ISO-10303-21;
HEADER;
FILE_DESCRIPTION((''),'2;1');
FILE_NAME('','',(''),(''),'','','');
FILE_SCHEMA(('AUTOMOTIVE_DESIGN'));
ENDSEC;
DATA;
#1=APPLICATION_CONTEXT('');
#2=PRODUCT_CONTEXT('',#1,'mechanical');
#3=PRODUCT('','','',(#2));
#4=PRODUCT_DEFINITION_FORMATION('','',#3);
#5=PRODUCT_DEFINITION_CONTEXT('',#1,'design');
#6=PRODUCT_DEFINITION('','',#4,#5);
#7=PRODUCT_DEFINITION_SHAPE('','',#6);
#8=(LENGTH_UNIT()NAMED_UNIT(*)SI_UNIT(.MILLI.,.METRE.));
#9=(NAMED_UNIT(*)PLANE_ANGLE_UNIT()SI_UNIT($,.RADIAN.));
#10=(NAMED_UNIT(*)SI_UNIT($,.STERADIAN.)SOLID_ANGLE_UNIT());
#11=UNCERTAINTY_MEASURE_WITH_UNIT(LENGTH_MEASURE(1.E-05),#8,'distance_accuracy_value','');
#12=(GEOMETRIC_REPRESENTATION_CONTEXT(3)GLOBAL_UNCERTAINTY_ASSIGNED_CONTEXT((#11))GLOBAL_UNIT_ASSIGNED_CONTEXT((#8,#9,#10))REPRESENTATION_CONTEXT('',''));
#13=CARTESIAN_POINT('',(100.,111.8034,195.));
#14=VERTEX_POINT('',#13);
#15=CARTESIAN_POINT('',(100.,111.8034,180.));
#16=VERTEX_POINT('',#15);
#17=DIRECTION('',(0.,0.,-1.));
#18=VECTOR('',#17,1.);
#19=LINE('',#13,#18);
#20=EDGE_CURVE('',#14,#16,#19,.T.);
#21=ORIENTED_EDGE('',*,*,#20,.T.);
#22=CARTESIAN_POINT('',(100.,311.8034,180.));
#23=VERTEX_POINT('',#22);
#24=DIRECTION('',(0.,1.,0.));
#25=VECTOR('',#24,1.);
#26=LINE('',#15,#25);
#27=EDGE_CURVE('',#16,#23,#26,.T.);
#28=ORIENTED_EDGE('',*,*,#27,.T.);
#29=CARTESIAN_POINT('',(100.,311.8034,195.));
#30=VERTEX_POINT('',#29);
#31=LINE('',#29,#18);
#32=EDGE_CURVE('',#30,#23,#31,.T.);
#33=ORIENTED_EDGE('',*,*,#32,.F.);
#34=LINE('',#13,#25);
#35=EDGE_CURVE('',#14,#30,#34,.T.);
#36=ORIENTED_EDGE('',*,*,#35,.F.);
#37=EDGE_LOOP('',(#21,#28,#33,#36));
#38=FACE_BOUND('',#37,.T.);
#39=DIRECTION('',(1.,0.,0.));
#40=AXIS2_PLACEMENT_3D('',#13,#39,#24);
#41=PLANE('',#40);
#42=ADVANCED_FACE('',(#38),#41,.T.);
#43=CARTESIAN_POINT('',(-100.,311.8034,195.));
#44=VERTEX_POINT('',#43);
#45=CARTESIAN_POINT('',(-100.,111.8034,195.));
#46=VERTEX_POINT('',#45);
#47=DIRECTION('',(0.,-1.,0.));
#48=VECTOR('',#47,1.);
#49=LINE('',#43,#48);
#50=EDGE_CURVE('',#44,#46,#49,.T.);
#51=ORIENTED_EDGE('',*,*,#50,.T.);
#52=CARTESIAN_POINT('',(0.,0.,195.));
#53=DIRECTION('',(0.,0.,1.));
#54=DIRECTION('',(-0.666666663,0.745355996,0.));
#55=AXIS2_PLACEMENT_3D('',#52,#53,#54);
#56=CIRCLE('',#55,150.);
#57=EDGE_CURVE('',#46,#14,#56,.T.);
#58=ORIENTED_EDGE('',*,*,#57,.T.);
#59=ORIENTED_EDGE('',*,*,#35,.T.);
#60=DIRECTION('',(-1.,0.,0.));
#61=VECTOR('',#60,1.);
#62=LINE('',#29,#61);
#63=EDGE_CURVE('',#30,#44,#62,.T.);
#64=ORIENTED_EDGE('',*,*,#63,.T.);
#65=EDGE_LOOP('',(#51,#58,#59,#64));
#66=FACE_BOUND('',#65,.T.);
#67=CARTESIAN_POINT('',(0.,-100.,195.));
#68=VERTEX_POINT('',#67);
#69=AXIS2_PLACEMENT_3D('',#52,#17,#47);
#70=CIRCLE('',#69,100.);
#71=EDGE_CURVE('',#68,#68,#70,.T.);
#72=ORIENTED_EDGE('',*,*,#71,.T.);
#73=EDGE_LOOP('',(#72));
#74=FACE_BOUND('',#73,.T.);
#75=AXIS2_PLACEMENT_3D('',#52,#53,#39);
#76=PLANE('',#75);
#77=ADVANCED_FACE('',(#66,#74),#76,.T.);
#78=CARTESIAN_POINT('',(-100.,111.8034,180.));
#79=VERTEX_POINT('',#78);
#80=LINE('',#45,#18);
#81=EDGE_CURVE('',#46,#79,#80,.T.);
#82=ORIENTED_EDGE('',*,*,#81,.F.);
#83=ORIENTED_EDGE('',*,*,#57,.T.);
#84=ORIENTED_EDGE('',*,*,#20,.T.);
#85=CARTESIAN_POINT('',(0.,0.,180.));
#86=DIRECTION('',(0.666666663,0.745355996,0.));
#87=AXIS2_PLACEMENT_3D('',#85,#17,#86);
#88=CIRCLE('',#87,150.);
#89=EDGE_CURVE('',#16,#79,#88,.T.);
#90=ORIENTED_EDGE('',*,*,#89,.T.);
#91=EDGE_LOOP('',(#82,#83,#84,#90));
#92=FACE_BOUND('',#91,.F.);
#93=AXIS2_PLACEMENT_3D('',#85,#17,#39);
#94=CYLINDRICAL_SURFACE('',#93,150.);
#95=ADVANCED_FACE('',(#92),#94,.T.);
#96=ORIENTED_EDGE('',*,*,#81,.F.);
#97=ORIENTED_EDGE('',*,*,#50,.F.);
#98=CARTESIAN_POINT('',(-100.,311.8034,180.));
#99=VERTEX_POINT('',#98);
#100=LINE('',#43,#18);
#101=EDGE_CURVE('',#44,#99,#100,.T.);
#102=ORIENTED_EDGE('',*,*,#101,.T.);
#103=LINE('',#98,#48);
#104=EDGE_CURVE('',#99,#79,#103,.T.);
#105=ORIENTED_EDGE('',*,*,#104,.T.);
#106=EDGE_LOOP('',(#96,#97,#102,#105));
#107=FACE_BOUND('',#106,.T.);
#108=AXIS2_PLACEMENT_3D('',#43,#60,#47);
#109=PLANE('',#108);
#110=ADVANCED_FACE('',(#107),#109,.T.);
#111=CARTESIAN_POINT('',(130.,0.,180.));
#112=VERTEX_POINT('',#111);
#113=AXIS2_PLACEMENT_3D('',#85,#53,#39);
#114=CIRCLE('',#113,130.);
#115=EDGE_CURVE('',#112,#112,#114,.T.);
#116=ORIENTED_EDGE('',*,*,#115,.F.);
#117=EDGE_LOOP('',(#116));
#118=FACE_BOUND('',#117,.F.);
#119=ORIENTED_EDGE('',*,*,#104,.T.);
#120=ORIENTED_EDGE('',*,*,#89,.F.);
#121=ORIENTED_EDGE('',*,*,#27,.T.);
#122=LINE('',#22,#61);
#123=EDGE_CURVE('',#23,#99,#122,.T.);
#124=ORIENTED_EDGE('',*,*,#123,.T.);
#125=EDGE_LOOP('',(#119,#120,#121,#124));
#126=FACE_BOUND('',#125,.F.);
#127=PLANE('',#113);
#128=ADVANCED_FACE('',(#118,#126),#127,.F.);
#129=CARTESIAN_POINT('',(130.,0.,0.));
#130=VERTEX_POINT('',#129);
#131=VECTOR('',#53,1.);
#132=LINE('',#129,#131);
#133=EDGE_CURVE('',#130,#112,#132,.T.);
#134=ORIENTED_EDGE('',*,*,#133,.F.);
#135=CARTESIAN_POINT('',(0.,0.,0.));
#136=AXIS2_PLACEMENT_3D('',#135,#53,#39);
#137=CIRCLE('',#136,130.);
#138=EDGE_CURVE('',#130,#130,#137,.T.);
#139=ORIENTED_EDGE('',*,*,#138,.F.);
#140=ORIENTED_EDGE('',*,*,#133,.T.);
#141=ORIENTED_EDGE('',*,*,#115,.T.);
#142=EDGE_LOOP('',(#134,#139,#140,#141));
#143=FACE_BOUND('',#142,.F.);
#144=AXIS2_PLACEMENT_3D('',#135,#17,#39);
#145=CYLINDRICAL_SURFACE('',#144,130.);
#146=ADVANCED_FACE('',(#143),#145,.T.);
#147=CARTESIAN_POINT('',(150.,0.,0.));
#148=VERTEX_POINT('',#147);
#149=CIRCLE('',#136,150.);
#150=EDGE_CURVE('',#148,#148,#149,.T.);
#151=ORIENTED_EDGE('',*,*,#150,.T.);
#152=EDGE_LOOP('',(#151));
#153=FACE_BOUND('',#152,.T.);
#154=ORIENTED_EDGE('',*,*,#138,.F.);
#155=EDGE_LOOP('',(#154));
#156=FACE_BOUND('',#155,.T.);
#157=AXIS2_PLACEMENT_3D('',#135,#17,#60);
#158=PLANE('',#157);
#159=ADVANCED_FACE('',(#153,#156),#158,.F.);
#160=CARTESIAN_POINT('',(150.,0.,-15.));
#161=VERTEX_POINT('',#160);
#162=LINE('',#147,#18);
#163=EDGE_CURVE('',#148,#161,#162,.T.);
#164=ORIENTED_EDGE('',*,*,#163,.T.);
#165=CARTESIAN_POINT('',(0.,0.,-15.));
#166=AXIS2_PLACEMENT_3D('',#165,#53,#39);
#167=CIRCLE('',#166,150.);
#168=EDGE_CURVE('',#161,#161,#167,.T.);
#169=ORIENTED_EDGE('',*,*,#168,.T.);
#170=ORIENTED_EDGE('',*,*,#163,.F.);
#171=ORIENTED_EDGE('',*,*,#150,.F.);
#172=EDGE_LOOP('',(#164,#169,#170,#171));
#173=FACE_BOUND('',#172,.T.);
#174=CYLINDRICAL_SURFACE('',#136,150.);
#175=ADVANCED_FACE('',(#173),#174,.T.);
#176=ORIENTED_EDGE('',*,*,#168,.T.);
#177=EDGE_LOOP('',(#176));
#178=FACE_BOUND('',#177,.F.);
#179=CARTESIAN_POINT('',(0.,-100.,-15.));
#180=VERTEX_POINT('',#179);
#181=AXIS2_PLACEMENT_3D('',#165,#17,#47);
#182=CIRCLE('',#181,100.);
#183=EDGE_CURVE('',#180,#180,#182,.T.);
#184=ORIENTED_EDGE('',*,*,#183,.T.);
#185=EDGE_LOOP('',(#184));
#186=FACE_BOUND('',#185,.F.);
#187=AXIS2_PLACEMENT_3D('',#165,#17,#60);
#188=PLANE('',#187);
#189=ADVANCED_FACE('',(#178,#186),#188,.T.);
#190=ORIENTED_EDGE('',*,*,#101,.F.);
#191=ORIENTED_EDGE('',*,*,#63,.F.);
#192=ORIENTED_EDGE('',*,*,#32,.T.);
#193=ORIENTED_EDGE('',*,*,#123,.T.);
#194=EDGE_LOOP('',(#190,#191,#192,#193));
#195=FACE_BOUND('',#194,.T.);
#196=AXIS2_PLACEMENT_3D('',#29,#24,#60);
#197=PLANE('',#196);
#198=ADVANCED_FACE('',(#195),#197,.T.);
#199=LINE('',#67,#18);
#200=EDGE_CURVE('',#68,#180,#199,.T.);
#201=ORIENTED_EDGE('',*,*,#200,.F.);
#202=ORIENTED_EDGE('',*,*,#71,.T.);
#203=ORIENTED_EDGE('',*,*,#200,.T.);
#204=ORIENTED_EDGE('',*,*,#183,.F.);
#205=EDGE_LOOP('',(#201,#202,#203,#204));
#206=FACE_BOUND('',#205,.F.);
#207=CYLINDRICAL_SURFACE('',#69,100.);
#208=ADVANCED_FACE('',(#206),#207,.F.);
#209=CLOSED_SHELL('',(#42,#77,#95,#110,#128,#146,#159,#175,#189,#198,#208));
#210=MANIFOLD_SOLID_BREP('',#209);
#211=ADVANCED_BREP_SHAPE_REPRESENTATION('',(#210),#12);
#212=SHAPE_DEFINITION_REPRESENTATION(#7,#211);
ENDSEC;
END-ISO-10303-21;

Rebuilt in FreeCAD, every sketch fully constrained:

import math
import FreeCAD as App
import Part
import Sketcher

doc = App.newDocument("Part")
body = doc.addObject("PartDesign::Body", "Body")

sketch1 = body.newObject("Sketcher::SketchObject", "Sketch")
sketch1.AttachmentSupport = (doc.getObject("XY_Plane"), [""])
sketch1.MapMode = "FlatFace"
sketch1.addGeometry(Part.Circle(App.Vector(0, 0, 0), App.Vector(0, 0, 1), 130), False)
sketch1.addConstraint([
    Sketcher.Constraint("Coincident", 0, 3, -1, 1),
    Sketcher.Constraint("Diameter", 0, 260.0),
])
pad1 = body.newObject("PartDesign::Pad", "Pad")
pad1.Profile = sketch1
pad1.Length = 180

sketch2 = body.newObject("Sketcher::SketchObject", "Sketch001")
sketch2.AttachmentSupport = (doc.getObject("XY_Plane"), [""])
sketch2.MapMode = "FlatFace"
sketch2.AttachmentOffset = App.Placement(App.Vector(0, 0, 180), App.Rotation())
sketch2.addGeometry(Part.Circle(App.Vector(0, 0, 0), App.Vector(0, 0, 1), 150), False)
sketch2.addConstraint([
    Sketcher.Constraint("Coincident", 0, 3, -1, 1),
    Sketcher.Constraint("Diameter", 0, 300.0),
])
pad2 = body.newObject("PartDesign::Pad", "Pad001")
pad2.Profile = sketch2
pad2.Length = 15
doc.recompute()

datumplane = body.newObject("PartDesign::Plane", "DatumPlane")
datumplane.AttachmentSupport = (doc.getObject("XY_Plane"), [""])
datumplane.MapMode = "FlatFace"
datumplane.AttachmentOffset = App.Placement(App.Vector(0, 0, 90), App.Rotation())
mirrored = body.newObject("PartDesign::Mirrored", "Mirrored")
mirrored.Originals = [pad2]
mirrored.MirrorPlane = (datumplane, [""])
body.Tip = mirrored

sketch3 = body.newObject("Sketcher::SketchObject", "Sketch002")
sketch3.AttachmentSupport = (doc.getObject("XY_Plane"), [""])
sketch3.MapMode = "FlatFace"
sketch3.AttachmentOffset = App.Placement(App.Vector(0, 0, 195), App.Rotation())
sketch3.addGeometry(Part.Circle(App.Vector(0, 0, 0), App.Vector(0, 0, 1), 100), False)
sketch3.addConstraint([
    Sketcher.Constraint("Coincident", 0, 3, -1, 1),
    Sketcher.Constraint("Diameter", 0, 200.0),
])
doc.recompute()
hole = body.newObject("PartDesign::Hole", "Hole")
hole.Profile = sketch3
hole.ThreadType = "None"
hole.Diameter = 200
hole.DepthType = "ThroughAll"

sketch4 = body.newObject("Sketcher::SketchObject", "Sketch003")
sketch4.AttachmentSupport = (doc.getObject("XY_Plane"), [""])
sketch4.MapMode = "FlatFace"
sketch4.AttachmentOffset = App.Placement(App.Vector(0, 0, 195), App.Rotation())
sketch4.addGeometry([
    Part.ArcOfCircle(Part.Circle(App.Vector(0, 0, 0), App.Vector(0, 0, 1), 150), math.radians(48), math.radians(132)),
    Part.LineSegment(App.Vector(100, 112, 0), App.Vector(100, 312, 0)),
    Part.LineSegment(App.Vector(100, 312, 0), App.Vector(-100, 312, 0)),
    Part.LineSegment(App.Vector(-100, 312, 0), App.Vector(-100, 112, 0)),
], False)
sketch4.addConstraint([
    Sketcher.Constraint("Coincident", 0, 1, 1, 1),
    Sketcher.Constraint("Coincident", 1, 2, 2, 1),
    Sketcher.Constraint("Coincident", 2, 2, 3, 1),
    Sketcher.Constraint("Coincident", 3, 2, 0, 2),
    Sketcher.Constraint("Vertical", 1),
    Sketcher.Constraint("Horizontal", 2),
    Sketcher.Constraint("Vertical", 3),
    Sketcher.Constraint("Coincident", 0, 3, -1, 1),
    Sketcher.Constraint("Horizontal", 0, 1, 3, 2),
    Sketcher.Constraint("Equal", 2, 1),
    Sketcher.Constraint("DistanceX", 2, 2, 2, 1, 200.0),
    Sketcher.Constraint("Radius", 0, 150.0),
])
pad3 = body.newObject("PartDesign::Pad", "Pad002")
pad3.Profile = sketch4
pad3.Length = 15
pad3.Reversed = True

doc.recompute()
